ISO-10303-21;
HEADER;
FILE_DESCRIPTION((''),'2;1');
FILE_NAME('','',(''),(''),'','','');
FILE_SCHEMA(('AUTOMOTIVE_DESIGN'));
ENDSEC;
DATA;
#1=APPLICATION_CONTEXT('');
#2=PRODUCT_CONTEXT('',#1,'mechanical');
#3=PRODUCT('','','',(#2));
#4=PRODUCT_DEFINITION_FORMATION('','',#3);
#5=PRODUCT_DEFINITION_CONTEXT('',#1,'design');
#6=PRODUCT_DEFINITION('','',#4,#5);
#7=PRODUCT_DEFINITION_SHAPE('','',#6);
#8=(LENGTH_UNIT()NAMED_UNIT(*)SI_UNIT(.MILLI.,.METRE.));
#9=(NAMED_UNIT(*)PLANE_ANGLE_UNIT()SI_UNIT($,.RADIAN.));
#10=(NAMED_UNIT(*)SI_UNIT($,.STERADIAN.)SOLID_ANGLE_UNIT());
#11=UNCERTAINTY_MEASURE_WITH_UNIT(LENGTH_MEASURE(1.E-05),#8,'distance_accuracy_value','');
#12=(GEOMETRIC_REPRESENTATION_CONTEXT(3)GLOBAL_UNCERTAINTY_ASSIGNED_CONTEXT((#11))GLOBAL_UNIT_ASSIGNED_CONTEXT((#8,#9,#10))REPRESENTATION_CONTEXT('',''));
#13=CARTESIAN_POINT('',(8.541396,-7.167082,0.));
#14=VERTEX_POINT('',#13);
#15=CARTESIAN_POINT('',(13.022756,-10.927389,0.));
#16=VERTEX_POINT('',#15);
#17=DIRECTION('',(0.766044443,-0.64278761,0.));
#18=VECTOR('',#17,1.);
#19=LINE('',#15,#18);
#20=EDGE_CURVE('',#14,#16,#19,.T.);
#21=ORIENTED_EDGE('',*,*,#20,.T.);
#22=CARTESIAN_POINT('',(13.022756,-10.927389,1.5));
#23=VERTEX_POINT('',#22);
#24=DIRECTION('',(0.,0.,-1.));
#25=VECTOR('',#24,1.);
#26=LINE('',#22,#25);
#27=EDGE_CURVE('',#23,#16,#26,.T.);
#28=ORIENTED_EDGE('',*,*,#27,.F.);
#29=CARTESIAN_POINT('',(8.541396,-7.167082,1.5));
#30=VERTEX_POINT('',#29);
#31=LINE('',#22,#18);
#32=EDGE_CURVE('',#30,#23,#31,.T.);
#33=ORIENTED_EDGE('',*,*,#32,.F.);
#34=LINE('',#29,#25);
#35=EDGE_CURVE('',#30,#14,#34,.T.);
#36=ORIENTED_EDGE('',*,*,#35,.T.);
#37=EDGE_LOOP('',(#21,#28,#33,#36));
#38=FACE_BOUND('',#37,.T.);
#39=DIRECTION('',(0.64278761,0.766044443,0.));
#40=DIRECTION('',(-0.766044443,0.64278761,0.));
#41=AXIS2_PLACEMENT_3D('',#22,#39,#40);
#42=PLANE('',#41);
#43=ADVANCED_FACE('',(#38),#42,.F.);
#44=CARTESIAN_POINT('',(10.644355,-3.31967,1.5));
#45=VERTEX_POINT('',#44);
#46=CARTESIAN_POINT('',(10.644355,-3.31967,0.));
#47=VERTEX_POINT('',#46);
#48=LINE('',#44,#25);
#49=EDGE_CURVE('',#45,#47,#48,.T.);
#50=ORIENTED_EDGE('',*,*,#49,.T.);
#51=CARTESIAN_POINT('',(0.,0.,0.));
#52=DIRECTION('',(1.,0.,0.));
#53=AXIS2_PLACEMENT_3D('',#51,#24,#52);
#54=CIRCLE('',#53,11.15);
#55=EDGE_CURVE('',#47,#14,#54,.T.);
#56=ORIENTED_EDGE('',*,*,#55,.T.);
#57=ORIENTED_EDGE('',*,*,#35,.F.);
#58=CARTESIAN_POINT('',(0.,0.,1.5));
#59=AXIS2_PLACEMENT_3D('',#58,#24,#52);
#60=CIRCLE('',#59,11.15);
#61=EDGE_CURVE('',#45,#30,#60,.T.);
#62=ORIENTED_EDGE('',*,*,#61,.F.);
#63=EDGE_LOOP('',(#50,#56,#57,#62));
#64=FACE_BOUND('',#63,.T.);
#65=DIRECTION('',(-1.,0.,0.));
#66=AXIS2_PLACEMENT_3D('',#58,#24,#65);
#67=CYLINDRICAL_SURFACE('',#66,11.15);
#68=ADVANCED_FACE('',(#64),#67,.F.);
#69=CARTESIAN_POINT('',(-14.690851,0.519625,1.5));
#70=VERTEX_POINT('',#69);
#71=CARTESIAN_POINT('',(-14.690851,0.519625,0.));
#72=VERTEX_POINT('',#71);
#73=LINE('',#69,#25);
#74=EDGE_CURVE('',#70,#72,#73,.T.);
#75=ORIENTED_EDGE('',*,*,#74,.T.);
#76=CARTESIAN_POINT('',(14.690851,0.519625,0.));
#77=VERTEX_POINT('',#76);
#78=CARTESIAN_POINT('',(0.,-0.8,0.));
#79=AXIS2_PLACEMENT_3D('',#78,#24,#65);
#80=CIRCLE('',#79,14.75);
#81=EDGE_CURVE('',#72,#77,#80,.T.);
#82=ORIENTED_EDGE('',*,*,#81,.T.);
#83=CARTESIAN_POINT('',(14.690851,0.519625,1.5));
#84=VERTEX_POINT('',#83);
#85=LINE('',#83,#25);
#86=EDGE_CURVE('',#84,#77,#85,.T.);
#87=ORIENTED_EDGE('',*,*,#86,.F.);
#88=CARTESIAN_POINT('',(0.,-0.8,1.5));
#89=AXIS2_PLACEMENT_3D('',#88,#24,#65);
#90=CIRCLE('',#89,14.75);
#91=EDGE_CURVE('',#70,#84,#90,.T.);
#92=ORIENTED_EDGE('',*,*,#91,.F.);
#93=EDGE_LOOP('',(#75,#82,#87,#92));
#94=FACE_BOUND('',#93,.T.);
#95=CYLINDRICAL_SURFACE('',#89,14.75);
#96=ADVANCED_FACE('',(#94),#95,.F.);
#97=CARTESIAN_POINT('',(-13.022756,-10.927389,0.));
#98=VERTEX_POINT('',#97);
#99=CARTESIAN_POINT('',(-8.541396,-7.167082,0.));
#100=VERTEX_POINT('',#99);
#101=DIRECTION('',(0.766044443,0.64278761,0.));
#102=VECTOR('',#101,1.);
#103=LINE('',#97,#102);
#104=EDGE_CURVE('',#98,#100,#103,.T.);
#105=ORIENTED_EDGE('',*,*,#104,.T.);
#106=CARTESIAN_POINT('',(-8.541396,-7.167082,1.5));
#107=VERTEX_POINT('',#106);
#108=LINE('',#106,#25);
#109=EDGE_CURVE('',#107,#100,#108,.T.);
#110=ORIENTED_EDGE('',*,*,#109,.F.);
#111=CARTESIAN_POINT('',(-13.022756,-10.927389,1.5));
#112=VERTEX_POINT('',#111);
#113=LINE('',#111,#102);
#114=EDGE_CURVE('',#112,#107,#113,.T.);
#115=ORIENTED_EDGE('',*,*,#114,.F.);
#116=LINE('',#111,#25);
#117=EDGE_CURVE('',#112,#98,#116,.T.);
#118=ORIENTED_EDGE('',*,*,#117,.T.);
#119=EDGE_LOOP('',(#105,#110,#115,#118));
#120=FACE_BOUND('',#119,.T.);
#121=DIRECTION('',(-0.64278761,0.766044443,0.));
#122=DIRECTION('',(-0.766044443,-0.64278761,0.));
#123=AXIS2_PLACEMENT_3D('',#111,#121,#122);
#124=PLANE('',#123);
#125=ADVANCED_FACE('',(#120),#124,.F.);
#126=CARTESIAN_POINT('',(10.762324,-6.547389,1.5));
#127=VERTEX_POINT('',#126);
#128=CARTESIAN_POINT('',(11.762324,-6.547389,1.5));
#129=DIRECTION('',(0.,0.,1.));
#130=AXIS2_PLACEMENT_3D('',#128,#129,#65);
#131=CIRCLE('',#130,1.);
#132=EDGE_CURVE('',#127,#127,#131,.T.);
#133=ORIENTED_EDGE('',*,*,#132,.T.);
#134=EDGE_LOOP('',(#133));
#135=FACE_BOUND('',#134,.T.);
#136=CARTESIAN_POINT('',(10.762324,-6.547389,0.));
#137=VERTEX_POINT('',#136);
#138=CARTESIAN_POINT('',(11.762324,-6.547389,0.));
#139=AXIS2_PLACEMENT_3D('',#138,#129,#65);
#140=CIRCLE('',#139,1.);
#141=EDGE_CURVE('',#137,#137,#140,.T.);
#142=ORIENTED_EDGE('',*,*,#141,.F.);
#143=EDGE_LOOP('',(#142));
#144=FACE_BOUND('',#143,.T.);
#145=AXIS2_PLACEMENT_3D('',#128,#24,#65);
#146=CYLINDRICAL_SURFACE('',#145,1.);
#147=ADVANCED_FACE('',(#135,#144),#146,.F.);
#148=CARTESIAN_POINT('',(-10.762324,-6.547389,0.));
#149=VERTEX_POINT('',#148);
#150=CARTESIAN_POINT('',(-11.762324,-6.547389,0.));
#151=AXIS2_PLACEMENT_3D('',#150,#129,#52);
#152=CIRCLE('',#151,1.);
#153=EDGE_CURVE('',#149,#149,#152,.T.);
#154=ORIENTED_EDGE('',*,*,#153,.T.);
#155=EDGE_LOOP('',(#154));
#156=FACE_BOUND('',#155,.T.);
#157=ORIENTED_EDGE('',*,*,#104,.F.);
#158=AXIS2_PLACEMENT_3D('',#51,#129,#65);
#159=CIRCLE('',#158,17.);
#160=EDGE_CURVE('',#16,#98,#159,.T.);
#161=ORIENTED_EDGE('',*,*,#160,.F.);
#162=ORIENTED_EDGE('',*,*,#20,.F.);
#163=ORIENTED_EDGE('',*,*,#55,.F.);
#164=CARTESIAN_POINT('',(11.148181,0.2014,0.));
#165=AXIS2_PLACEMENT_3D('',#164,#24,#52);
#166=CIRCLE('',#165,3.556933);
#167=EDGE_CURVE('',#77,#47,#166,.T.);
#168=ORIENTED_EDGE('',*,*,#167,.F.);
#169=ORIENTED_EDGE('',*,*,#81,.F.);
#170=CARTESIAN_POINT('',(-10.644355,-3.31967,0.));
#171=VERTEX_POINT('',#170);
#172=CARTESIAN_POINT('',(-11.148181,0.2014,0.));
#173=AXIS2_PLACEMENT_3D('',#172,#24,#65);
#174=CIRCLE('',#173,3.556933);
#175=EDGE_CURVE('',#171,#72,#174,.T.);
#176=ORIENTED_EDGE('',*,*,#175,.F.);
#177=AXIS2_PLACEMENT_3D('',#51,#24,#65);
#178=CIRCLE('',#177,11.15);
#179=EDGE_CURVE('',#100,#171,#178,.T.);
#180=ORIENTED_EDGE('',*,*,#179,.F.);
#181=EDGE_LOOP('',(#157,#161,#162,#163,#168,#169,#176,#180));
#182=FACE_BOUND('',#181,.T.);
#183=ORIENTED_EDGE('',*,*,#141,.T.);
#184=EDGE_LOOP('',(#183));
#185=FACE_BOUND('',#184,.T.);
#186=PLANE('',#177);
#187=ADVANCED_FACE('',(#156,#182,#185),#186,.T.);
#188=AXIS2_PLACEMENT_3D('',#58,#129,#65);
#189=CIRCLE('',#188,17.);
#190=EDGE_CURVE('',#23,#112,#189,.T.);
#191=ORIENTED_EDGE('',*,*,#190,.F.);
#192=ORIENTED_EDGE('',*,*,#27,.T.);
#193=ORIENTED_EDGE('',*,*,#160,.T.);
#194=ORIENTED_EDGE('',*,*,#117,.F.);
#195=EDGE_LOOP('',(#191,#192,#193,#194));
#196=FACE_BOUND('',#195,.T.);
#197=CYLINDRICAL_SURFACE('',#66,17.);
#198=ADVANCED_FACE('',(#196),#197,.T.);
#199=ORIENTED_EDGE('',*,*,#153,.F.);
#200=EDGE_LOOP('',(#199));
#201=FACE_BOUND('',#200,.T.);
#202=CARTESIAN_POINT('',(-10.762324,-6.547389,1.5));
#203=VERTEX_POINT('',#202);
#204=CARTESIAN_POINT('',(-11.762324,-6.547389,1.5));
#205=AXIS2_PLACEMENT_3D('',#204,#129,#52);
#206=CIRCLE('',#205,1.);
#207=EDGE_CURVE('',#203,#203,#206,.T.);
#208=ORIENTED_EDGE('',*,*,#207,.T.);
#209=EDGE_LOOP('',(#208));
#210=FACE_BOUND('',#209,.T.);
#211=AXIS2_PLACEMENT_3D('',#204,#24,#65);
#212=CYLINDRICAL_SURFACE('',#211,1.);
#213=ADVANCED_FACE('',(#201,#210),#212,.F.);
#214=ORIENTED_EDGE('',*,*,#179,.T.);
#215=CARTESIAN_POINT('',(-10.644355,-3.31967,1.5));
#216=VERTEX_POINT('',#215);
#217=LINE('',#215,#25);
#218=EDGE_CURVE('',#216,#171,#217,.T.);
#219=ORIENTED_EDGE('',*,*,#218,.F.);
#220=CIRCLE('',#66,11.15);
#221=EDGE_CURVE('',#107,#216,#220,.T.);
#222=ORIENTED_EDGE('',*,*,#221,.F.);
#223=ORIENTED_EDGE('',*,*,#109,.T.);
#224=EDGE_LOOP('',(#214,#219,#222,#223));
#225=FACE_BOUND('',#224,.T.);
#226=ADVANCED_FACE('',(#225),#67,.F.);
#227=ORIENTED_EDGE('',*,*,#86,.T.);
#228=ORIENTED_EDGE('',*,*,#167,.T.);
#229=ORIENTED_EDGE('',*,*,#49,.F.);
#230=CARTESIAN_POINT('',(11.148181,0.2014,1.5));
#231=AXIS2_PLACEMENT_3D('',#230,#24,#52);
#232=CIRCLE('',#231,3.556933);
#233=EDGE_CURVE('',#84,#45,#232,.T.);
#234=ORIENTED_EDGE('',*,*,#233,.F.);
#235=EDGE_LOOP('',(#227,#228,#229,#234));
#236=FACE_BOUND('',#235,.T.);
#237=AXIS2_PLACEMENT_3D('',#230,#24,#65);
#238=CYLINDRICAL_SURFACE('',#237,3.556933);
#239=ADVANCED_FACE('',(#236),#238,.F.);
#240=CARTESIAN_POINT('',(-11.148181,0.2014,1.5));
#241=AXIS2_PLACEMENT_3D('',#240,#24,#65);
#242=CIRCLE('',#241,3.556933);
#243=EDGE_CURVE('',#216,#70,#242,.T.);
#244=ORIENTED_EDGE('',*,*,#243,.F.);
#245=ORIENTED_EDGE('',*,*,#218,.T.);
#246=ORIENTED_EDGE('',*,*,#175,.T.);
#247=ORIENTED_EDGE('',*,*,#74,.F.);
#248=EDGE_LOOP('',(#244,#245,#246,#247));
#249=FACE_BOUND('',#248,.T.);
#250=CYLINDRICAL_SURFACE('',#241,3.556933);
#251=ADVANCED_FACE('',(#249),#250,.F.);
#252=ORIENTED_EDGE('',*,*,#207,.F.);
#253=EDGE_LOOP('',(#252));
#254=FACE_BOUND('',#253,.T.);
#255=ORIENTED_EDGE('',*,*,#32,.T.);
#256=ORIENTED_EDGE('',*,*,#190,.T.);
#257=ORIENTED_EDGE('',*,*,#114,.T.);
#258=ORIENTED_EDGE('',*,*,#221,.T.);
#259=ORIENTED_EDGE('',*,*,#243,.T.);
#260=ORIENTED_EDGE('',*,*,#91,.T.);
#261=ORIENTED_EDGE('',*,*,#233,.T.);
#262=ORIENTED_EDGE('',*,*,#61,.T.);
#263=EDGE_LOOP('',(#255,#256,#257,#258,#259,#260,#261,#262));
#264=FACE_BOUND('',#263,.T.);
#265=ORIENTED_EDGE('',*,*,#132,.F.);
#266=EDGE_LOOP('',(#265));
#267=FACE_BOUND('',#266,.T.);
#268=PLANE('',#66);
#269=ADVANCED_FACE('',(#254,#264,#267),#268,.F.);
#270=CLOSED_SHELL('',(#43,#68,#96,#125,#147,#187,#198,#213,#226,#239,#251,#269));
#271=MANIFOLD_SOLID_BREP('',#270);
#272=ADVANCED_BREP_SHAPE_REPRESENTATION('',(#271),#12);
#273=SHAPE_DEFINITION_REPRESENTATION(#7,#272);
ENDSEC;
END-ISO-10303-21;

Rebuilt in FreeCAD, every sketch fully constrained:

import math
import FreeCAD as App
import Part
import Sketcher
from FreeCAD import Vector
Q = App.Units.Quantity

doc = App.newDocument("Part")
params = doc.addObject("Spreadsheet::Sheet", "Params")
for row, (alias, value) in enumerate([
    ("sketch1_diameter", "2 mm"),
    ("sketch1_radius", "17 mm"),
    ("sketch1_radius2", "11.15 mm"),
    ("sketch1_radius3", "14.75 mm"),
    ("pad1_length", "1.5 mm"),
], start=1):
    params.set(f"A{row}", alias)
    params.set(f"B{row}", "=" + value)
    params.setAlias(f"B{row}", alias)

body = doc.addObject("PartDesign::Body", "Body")

# Sketch on XY plane
sketch1 = doc.addObject("Sketcher::SketchObject", "Sketch")
body.addObject(sketch1)
sketch1.AttachmentSupport = (doc.XY_Plane, [""])
sketch1.MapMode = "FlatFace"
sketch1.addGeometry([
    Part.LineSegment(Vector(-13, -10.9, 0), Vector(-8.5, -7.2, 0)),  # 0
    Part.ArcOfCircle(Part.Circle(Vector(0, 0, 0), Vector(0, 0, 1), 11.2), math.radians(-163), math.radians(-140)),  # 1
    Part.ArcOfCircle(Part.Circle(Vector(-11.1, 0.2, 0), Vector(0, 0, 1), 3.6), math.radians(175), math.radians(278)),  # 2
    Part.ArcOfCircle(Part.Circle(Vector(0, -0.8, 0), Vector(0, 0, 1), 14.8), math.radians(5), math.radians(175)),  # 3
    Part.ArcOfCircle(Part.Circle(Vector(11.1, 0.2, 0), Vector(0, 0, 1), 3.6), math.radians(-98), math.radians(5)),  # 4
    Part.ArcOfCircle(Part.Circle(Vector(0, 0, 0), Vector(0, 0, 1), 11.2), math.radians(-40), math.radians(-17)),  # 5
    Part.LineSegment(Vector(8.5, -7.2, 0), Vector(13, -10.9, 0)),  # 6
    Part.ArcOfCircle(Part.Circle(Vector(0, 0, 0), Vector(0, 0, 1), 17), math.radians(-40), math.radians(220)),  # 7
    Part.Circle(Vector(-11.8, -6.5, 0), Vector(0, 0, 1), 1),  # 8
    Part.Circle(Vector(11.8, -6.5, 0), Vector(0, 0, 1), 1),  # 9
], False)
sketch1.addConstraint([
    Sketcher.Constraint("Coincident", 0, 2, 1, 2),
    Sketcher.Constraint("Coincident", 1, 1, 2, 2),
    Sketcher.Constraint("Tangent", 2, 1, 3, 2),
    Sketcher.Constraint("Tangent", 3, 1, 4, 2),
    Sketcher.Constraint("Coincident", 4, 1, 5, 2),
    Sketcher.Constraint("Coincident", 5, 1, 6, 1),
    Sketcher.Constraint("Coincident", 6, 2, 7, 1),
    Sketcher.Constraint("Coincident", 7, 2, 0, 1),
    Sketcher.Constraint("Coincident", 1, 3, -1, 1),
    Sketcher.Constraint("Coincident", 5, 3, -1, 1),
    Sketcher.Constraint("Coincident", 7, 3, -1, 1),
    Sketcher.Constraint("Equal", 2, 4),
    Sketcher.Constraint("Equal", 1, 5),
    Sketcher.Constraint("Equal", 8, 9),
    Sketcher.Constraint("Symmetric", 2, 3, 4, 3, -2),
    Sketcher.Constraint("Symmetric", 8, 3, 9, 3, -2),
    Sketcher.Constraint("Horizontal", 0, 2, 5, 1),
    Sketcher.Constraint("Horizontal", 6, 2, 7, 2),
    Sketcher.Constraint("Diameter", 8, 2.0),
    Sketcher.Constraint("Radius", 7, 17.0),
    Sketcher.Constraint("Angle", 0, Q("40 deg")),
    Sketcher.Constraint("Radius", 1, 11.15),
    Sketcher.Constraint("Radius", 3, 14.75),
    Sketcher.Constraint("DistanceY", 3, 3, -1, 1, 0.8),
    Sketcher.Constraint("DistanceY", 6, 2, 9, 3, 4.38),
    Sketcher.Constraint("Radius", 2, 3.556933),
    Sketcher.Constraint("DistanceY", -1, 1, 2, 3, 0.2014),
    Sketcher.Constraint("DistanceX", 4, 1, 6, 2, 2.378401),
    Sketcher.Constraint("DistanceX", 8, 3, 0, 2, 3.220929),
])
sketch1.setExpression("Constraints[18]", "Params.sketch1_diameter")
sketch1.setExpression("Constraints[19]", "Params.sketch1_radius")
sketch1.setExpression("Constraints[21]", "Params.sketch1_radius2")
sketch1.setExpression("Constraints[22]", "Params.sketch1_radius3")
pad1 = doc.addObject("PartDesign::Pad", "Pad")
body.addObject(pad1)
pad1.Profile = sketch1
pad1.setExpression("Length", "Params.pad1_length")

doc.recompute()
